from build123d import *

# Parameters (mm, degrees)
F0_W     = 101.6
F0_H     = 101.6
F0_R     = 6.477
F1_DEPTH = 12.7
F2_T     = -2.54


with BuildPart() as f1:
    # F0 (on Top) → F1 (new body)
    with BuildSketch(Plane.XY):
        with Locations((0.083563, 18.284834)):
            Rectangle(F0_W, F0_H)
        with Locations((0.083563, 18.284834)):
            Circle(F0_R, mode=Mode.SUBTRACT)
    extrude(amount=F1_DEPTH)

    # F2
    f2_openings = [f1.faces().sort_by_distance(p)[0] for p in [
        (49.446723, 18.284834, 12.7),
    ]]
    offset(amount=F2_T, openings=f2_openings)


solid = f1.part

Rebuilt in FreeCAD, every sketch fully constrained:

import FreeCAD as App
import Part
import Sketcher

V = App.Vector
Q = App.Units.Quantity


def faces_at(feature, points):
    """Names of the faces that lie closest to the given points."""
    faces = feature.Shape.Faces
    near = lambda p: min(range(len(faces)), key=lambda i: faces[i].distToShape(Part.Vertex(*p))[0])
    return sorted({f"Face{near(p) + 1}" for p in points})

doc = App.newDocument("Part")
body = doc.addObject("PartDesign::Body", "Body")

# Sketch on XY plane
sketch1 = doc.addObject("Sketcher::SketchObject", "Sketch")
body.addObject(sketch1)
sketch1.AttachmentSupport = (doc.XY_Plane, [""])
sketch1.MapMode = "FlatFace"
sketch1.addGeometry([
    Part.LineSegment(V(-50.716437, 69.084834, 0), V(-50.716437, -32.515166, 0)),  # 0
    Part.LineSegment(V(-50.716437, -32.515166, 0), V(50.883563, -32.515166, 0)),  # 1
    Part.LineSegment(V(50.883563, -32.515166, 0), V(50.883563, 69.084834, 0)),  # 2
    Part.LineSegment(V(50.883563, 69.084834, 0), V(-50.716437, 69.084834, 0)),  # 3
    Part.Circle(V(0.083563, 18.284834, 0), V(0, 0, 1), 6.477),  # 4
], False)
sketch1.addConstraint([
    Sketcher.Constraint("Coincident", 0, 2, 1, 1),
    Sketcher.Constraint("Coincident", 1, 2, 2, 1),
    Sketcher.Constraint("Coincident", 2, 2, 3, 1),
    Sketcher.Constraint("Coincident", 3, 2, 0, 1),
    Sketcher.Constraint("Vertical", 0),
    Sketcher.Constraint("Horizontal", 1),
    Sketcher.Constraint("Vertical", 2),
    Sketcher.Constraint("Horizontal", 3),
    Sketcher.Constraint("Equal", 3, 0),
    Sketcher.Constraint("Diameter", 4, Q("0.51 in")),
    Sketcher.Constraint("DistanceX", 1, 1, 1, 2, Q("4 in")),
    Sketcher.Constraint("DistanceX", 0, 2, 4, 3, Q("2 in")),
    Sketcher.Constraint("DistanceY", 0, 2, 4, 3, Q("2 in")),
    Sketcher.Constraint("DistanceX", -1, 1, 4, 3, Q("0.083563 mm")),
    Sketcher.Constraint("DistanceY", -1, 1, 4, 3, Q("18.284834 mm")),
])
pad1 = doc.addObject("PartDesign::Pad", "Pad")
body.addObject(pad1)
pad1.Profile = sketch1
pad1.Length = Q("0.5 in")
doc.recompute()

thickness = doc.addObject("PartDesign::Thickness", "Thickness")
body.addObject(thickness)
thickness.Base = (pad1, faces_at(pad1, [(-20.236, -2.035, 12.7)]))
thickness.Value = Q("0.1 in")
thickness.Reversed = True
thickness.Join = "Arc"

doc.recompute()
